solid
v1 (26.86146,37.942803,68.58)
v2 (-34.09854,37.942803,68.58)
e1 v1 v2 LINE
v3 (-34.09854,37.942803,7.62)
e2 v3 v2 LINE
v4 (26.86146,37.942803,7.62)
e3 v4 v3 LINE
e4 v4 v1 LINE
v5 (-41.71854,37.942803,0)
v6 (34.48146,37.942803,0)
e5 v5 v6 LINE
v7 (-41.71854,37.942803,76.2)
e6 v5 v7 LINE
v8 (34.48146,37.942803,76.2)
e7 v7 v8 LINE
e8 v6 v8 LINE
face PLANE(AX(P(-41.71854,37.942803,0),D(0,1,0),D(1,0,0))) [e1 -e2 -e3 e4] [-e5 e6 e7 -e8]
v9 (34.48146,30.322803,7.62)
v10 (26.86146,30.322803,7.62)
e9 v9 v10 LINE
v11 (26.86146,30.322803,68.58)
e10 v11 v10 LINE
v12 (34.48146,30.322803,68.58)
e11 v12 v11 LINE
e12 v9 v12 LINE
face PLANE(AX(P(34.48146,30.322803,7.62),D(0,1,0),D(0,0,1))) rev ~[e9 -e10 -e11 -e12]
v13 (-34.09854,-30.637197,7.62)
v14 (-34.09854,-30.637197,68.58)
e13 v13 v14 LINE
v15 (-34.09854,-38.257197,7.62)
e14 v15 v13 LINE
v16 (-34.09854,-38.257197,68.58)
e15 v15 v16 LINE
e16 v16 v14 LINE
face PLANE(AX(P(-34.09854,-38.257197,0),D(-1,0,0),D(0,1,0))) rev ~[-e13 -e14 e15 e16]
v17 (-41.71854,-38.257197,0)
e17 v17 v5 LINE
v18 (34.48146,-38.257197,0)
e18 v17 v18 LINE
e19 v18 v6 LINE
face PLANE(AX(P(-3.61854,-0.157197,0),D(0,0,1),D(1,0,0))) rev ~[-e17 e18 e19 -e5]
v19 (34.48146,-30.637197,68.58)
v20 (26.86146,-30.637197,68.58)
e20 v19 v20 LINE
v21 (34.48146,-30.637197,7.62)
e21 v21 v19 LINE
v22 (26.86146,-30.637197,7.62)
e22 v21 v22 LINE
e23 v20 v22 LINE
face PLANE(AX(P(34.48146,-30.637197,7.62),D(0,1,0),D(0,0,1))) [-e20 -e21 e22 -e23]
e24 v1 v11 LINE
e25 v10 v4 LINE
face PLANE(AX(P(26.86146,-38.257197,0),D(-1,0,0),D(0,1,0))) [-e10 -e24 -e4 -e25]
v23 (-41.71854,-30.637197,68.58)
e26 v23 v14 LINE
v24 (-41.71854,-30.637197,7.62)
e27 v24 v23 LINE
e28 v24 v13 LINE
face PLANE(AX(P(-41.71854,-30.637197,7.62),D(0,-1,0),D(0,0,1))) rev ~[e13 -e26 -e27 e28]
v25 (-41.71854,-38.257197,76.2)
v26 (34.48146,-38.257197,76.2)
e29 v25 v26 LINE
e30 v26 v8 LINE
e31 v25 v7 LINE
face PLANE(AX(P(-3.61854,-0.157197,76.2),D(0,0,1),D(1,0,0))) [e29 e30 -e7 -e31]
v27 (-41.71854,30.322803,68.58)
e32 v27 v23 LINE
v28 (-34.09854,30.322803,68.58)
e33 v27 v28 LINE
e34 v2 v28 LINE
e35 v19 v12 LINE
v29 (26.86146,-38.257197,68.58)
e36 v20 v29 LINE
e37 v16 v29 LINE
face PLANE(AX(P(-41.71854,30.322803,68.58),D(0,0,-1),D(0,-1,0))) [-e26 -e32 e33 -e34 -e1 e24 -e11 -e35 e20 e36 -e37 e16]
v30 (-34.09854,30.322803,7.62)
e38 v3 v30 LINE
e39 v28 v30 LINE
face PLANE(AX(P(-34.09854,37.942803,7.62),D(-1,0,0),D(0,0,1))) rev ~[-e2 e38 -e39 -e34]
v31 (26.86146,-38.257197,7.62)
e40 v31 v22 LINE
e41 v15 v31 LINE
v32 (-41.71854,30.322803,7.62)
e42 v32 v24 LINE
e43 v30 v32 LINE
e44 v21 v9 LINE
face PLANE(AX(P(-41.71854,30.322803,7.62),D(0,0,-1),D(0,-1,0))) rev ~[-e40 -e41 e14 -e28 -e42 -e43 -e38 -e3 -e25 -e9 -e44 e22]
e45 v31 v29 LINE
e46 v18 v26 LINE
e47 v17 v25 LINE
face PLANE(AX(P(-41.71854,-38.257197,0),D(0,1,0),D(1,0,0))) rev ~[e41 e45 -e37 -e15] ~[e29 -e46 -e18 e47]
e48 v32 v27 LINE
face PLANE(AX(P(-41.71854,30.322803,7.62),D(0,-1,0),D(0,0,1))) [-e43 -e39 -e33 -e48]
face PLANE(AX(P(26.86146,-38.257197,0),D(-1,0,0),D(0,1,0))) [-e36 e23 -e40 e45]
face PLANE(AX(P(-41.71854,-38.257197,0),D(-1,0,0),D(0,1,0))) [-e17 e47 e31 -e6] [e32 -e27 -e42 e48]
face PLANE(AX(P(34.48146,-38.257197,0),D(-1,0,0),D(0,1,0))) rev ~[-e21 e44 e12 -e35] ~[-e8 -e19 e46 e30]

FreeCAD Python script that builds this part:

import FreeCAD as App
import Part
import Sketcher
from FreeCAD import Vector
Q = App.Units.Quantity


def faces_at(feature, points):
    """Names of the faces that lie closest to the given points."""
    faces = feature.Shape.Faces
    near = lambda p: min(range(len(faces)), key=lambda i: faces[i].distToShape(Part.Vertex(*p))[0])
    return sorted({f"Face{near(p) + 1}" for p in points})


def add_polygon(sketch, points):
    """Adds a closed chain of lines whose ends are joined by coincident constraints."""
    first, n = sketch.GeometryCount, len(points)
    for a, b in zip(points, points[1:] + points[:1]):
        sketch.addGeometry(Part.LineSegment(App.Vector(*a, 0), App.Vector(*b, 0)), False)
    for i in range(n):
        sketch.addConstraint(Sketcher.Constraint("Coincident", first + i, 2, first + (i + 1) % n, 1))

doc = App.newDocument("Part")
body = doc.addObject("PartDesign::Body", "Body")

# Sketch on XY plane
sketch1 = body.newObject("Sketcher::SketchObject", "Sketch")
sketch1.AttachmentSupport = (doc.getObject("XY_Plane"), [""])
sketch1.MapMode = "FlatFace"
add_polygon(sketch1, [(-42, 38), (-42, -38), (34, -38), (34, 38)])  # lines 0-3
sketch1.addConstraint([
    Sketcher.Constraint("Vertical", 0),
    Sketcher.Constraint("Horizontal", 1),
    Sketcher.Constraint("Vertical", 2),
    Sketcher.Constraint("Horizontal", 3),
    Sketcher.Constraint("Equal", 3, 0),
    Sketcher.Constraint("DistanceX", 1, 1, 1, 2, Q("3 in")),
    Sketcher.Constraint("DistanceX", 0, 2, -1, 1, Q("41.71854 mm")),
    Sketcher.Constraint("DistanceY", 0, 2, -1, 1, Q("38.257197 mm")),
])
pad1 = body.newObject("PartDesign::Pad", "Pad")
pad1.Profile = sketch1
pad1.Length = Q("3 in")
doc.recompute()

thickness = body.newObject("PartDesign::Thickness", "Thickness")
thickness.Base = (pad1, faces_at(pad1, [(-3.619, -38.257, 38.1)]))
thickness.Value = Q("0.3 in")
thickness.Reversed = True
thickness.Join = "Arc"

# Sketch on YZ plane
sketch2 = body.newObject("Sketcher::SketchObject", "Sketch001")
sketch2.AttachmentSupport = (doc.getObject("YZ_Plane"), [""])
sketch2.MapMode = "FlatFace"
sketch2.AttachmentOffset = App.Placement(Vector(0, 0, -41.71854), App.Rotation())
add_polygon(sketch2, [(30, 69), (30, 8), (-31, 8), (-31, 69)])  # lines 0-3
sketch2.addConstraint([
    Sketcher.Constraint("Vertical", 0),
    Sketcher.Constraint("Horizontal", 1),
    Sketcher.Constraint("Vertical", 2),
    Sketcher.Constraint("Horizontal", 3),
    Sketcher.Constraint("Equal", 3, 0),
    Sketcher.Constraint("DistanceX", 1, 2, 1, 1, Q("2.4 in")),
    Sketcher.Constraint("DistanceY", -1, 1, 0, 2, Q("0.3 in")),
    Sketcher.Constraint("DistanceX", -1, 1, 0, 2, Q("30.322803 mm")),
])
pocket1 = body.newObject("PartDesign::Pocket", "Pocket")
pocket1.Profile = sketch2
pocket1.Length = Q("1 in")
pocket1.Reversed = True

# Sketch on XZ plane
sketch3 = body.newObject("Sketcher::SketchObject", "Sketch002")
sketch3.AttachmentSupport = (doc.getObject("XZ_Plane"), [""])
sketch3.MapMode = "FlatFace"
sketch3.AttachmentOffset = App.Placement(Vector(0, 0, -37.942803), App.Rotation())
add_polygon(sketch3, [(27, 69), (27, 8), (-34, 8), (-34, 69)])  # lines 0-3
sketch3.addConstraint([
    Sketcher.Constraint("Vertical", 0),
    Sketcher.Constraint("Horizontal", 1),
    Sketcher.Constraint("Vertical", 2),
    Sketcher.Constraint("Horizontal", 3),
    Sketcher.Constraint("Equal", 3, 0),
    Sketcher.Constraint("DistanceX", 1, 2, 1, 1, Q("2.4 in")),
    Sketcher.Constraint("DistanceY", -1, 1, 0, 2, Q("0.3 in")),
    Sketcher.Constraint("DistanceX", -1, 1, 0, 2, Q("26.86146 mm")),
])
pocket2 = body.newObject("PartDesign::Pocket", "Pocket001")
pocket2.Profile = sketch3
pocket2.Length = Q("1 in")
pocket2.Reversed = True

# Sketch on YZ plane
sketch4 = body.newObject("Sketcher::SketchObject", "Sketch003")
sketch4.AttachmentSupport = (doc.getObject("YZ_Plane"), [""])
sketch4.MapMode = "FlatFace"
sketch4.AttachmentOffset = App.Placement(Vector(0, 0, 34.48146), App.Rotation())
add_polygon(sketch4, [(-31, 69), (-31, 8), (30, 8), (30, 69)])  # lines 0-3
sketch4.addConstraint([
    Sketcher.Constraint("Vertical", 0),
    Sketcher.Constraint("Horizontal", 1),
    Sketcher.Constraint("Vertical", 2),
    Sketcher.Constraint("Horizontal", 3),
    Sketcher.Constraint("Equal", 3, 0),
    Sketcher.Constraint("DistanceX", 1, 1, 1, 2, Q("2.4 in")),
    Sketcher.Constraint("DistanceY", -1, 1, 0, 2, Q("0.3 in")),
    Sketcher.Constraint("DistanceX", 0, 2, -1, 1, Q("30.637197 mm")),
])
pocket3 = body.newObject("PartDesign::Pocket", "Pocket002")
pocket3.Profile = sketch4
pocket3.Length = Q("1 in")

doc.recompute()
